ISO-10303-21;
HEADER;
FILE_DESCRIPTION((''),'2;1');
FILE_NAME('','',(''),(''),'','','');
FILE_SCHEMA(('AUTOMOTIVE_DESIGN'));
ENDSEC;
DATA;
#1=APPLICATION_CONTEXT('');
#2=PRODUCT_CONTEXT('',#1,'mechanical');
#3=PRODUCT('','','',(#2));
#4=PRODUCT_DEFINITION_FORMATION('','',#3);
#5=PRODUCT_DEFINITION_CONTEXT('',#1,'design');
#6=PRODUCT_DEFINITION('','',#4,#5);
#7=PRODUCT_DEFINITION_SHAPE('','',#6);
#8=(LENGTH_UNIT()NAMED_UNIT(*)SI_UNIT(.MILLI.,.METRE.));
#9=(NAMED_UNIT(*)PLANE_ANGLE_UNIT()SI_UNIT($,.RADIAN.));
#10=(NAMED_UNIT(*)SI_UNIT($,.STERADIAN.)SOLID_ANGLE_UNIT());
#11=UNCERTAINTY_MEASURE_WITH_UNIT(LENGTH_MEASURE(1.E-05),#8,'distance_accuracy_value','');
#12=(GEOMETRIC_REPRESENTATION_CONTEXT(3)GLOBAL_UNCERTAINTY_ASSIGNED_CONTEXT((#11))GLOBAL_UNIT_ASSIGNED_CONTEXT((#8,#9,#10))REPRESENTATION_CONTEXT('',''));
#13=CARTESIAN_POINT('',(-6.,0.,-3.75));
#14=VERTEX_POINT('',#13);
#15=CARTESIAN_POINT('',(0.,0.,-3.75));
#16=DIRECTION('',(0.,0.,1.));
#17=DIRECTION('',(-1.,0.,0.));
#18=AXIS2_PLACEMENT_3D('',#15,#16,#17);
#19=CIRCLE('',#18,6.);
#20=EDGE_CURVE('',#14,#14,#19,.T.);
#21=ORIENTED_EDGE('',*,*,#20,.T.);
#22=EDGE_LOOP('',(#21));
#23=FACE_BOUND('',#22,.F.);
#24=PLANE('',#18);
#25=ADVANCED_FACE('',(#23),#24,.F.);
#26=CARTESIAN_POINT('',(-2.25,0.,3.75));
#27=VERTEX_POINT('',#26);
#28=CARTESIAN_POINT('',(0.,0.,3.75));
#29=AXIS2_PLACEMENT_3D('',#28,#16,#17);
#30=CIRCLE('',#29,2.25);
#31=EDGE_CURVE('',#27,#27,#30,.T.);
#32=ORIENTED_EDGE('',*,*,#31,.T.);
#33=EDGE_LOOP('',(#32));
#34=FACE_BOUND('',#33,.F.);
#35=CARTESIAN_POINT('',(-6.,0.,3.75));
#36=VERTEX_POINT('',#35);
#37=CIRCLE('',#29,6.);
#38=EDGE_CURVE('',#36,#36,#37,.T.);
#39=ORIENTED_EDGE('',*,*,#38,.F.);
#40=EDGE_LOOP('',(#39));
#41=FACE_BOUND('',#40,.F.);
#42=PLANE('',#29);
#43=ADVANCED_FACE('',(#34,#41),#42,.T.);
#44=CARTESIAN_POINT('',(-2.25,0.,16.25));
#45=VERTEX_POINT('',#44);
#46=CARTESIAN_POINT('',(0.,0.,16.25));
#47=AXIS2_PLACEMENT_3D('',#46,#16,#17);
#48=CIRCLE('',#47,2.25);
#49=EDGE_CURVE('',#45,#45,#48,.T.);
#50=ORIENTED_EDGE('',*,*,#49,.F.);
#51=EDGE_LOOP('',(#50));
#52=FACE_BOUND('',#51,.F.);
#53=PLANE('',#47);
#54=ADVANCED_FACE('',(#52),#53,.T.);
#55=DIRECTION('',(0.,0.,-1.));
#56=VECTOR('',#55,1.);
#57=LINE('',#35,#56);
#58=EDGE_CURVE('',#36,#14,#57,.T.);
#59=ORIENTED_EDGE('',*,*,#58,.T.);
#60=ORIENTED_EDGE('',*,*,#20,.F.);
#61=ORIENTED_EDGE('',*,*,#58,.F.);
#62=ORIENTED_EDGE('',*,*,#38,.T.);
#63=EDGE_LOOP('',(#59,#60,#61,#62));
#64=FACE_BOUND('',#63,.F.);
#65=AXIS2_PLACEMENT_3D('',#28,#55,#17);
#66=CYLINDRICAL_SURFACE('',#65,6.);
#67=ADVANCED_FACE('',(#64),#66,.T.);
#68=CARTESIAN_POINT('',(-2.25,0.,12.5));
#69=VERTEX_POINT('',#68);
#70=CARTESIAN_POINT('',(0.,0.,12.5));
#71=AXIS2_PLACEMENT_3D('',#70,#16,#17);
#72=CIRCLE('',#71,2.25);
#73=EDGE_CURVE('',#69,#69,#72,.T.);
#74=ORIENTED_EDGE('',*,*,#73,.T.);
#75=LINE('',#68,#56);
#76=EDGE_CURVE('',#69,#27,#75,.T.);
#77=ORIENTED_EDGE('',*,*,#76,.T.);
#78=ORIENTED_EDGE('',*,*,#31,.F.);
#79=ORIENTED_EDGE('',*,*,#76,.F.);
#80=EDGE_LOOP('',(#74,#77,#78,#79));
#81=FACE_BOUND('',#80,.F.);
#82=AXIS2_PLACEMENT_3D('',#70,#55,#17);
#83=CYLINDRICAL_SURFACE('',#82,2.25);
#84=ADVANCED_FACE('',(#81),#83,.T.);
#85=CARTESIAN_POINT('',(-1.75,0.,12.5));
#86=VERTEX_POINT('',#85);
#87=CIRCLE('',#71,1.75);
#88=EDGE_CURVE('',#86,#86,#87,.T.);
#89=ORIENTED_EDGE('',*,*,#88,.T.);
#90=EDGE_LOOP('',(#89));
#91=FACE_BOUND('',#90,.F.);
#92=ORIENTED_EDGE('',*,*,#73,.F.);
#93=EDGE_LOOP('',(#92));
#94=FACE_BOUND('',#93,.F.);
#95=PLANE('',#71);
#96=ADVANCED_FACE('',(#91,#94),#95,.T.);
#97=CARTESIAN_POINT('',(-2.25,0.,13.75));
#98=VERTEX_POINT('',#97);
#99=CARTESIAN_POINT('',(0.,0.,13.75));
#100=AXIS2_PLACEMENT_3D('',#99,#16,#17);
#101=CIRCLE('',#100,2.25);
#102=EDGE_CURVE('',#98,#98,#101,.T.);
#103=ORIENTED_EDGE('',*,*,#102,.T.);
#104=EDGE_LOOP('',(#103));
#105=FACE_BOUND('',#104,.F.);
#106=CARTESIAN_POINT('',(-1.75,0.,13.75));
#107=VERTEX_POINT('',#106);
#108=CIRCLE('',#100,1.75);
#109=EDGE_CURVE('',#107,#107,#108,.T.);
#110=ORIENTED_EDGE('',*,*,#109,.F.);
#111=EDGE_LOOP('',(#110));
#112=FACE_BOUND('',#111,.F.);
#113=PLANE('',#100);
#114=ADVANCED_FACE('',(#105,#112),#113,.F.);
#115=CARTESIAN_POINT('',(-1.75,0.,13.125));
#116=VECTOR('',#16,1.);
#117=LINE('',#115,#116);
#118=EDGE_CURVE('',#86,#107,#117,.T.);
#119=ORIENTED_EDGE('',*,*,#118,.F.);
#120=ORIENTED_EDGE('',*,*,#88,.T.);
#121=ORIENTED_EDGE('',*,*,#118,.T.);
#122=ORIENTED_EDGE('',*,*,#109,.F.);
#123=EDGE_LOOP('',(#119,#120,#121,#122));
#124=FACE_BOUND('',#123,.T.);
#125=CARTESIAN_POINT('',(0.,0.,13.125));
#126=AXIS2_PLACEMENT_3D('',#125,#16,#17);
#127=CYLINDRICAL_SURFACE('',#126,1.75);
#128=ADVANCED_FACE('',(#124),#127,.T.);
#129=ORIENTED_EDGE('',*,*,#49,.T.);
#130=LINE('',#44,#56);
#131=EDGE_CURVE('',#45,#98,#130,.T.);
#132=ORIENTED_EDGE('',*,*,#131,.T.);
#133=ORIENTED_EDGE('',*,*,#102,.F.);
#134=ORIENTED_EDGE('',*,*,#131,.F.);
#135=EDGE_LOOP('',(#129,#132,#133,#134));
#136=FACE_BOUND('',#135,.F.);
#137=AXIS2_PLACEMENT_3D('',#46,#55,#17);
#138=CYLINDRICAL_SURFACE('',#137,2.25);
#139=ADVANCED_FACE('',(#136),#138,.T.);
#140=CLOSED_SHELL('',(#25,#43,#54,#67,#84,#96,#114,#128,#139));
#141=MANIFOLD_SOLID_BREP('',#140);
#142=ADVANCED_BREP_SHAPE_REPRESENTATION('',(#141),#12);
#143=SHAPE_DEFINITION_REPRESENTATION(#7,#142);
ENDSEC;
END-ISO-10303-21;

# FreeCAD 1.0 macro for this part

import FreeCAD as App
import Part
import Sketcher
from FreeCAD import Vector
Q = App.Units.Quantity


def add_polygon(sketch, points):
    """Adds a closed chain of lines whose ends are joined by coincident constraints."""
    first, n = sketch.GeometryCount, len(points)
    for a, b in zip(points, points[1:] + points[:1]):
        sketch.addGeometry(Part.LineSegment(App.Vector(*a, 0), App.Vector(*b, 0)), False)
    for i in range(n):
        sketch.addConstraint(Sketcher.Constraint("Coincident", first + i, 2, first + (i + 1) % n, 1))

doc = App.newDocument("Part")
body = doc.addObject("PartDesign::Body", "Body")

# Sketch on XZ plane
sketch1 = body.newObject("Sketcher::SketchObject", "Sketch")
sketch1.AttachmentSupport = (doc.getObject("XZ_Plane"), [""])
sketch1.MapMode = "FlatFace"
add_polygon(sketch1, [(-1.8, 13.8), (-1.8, 12.5), (-2.2, 12.5), (-2.2, 3.8), (-6, 3.8), (-6, -3.8), (0, -3.8), (0, 16.2), (-2.2, 16.2), (-2.2, 13.8)])  # lines 0-9
sketch1.addConstraint([
    Sketcher.Constraint("Vertical", 0),
    Sketcher.Constraint("Horizontal", 1),
    Sketcher.Constraint("Vertical", 2),
    Sketcher.Constraint("Horizontal", 3),
    Sketcher.Constraint("Vertical", 4),
    Sketcher.Constraint("Horizontal", 5),
    Sketcher.Constraint("Vertical", 6),
    Sketcher.Constraint("Horizontal", 7),
    Sketcher.Constraint("Vertical", 8),
    Sketcher.Constraint("Horizontal", 9),
    Sketcher.Constraint("PointOnObject", 5, 2, -2),
    Sketcher.Constraint("Vertical", 2, 2, 7, 2),
    Sketcher.Constraint("DistanceX", 5, 1, 5, 2, Q("6 mm")),
    Sketcher.Constraint("DistanceY", 6, 1, 6, 2, Q("20 mm")),
    Sketcher.Constraint("DistanceX", 1, 2, 1, 1, Q("0.5 mm")),
    Sketcher.Constraint("DistanceY", 4, 2, 4, 1, Q("7.5 mm")),
    Sketcher.Constraint("DistanceY", 8, 2, 8, 1, Q("2.5 mm")),
    Sketcher.Constraint("DistanceX", 3, 2, 3, 1, Q("3.75 mm")),
    Sketcher.Constraint("DistanceY", 0, 2, 0, 1, Q("1.25 mm")),
    Sketcher.Constraint("DistanceY", -1, 1, 0, 2, Q("12.5 mm")),
])
revolution = body.newObject("PartDesign::Revolution", "Revolution")
revolution.Profile = sketch1
revolution.ReferenceAxis = (sketch1, ["V_Axis"])
revolution.Angle = 360

doc.recompute()
